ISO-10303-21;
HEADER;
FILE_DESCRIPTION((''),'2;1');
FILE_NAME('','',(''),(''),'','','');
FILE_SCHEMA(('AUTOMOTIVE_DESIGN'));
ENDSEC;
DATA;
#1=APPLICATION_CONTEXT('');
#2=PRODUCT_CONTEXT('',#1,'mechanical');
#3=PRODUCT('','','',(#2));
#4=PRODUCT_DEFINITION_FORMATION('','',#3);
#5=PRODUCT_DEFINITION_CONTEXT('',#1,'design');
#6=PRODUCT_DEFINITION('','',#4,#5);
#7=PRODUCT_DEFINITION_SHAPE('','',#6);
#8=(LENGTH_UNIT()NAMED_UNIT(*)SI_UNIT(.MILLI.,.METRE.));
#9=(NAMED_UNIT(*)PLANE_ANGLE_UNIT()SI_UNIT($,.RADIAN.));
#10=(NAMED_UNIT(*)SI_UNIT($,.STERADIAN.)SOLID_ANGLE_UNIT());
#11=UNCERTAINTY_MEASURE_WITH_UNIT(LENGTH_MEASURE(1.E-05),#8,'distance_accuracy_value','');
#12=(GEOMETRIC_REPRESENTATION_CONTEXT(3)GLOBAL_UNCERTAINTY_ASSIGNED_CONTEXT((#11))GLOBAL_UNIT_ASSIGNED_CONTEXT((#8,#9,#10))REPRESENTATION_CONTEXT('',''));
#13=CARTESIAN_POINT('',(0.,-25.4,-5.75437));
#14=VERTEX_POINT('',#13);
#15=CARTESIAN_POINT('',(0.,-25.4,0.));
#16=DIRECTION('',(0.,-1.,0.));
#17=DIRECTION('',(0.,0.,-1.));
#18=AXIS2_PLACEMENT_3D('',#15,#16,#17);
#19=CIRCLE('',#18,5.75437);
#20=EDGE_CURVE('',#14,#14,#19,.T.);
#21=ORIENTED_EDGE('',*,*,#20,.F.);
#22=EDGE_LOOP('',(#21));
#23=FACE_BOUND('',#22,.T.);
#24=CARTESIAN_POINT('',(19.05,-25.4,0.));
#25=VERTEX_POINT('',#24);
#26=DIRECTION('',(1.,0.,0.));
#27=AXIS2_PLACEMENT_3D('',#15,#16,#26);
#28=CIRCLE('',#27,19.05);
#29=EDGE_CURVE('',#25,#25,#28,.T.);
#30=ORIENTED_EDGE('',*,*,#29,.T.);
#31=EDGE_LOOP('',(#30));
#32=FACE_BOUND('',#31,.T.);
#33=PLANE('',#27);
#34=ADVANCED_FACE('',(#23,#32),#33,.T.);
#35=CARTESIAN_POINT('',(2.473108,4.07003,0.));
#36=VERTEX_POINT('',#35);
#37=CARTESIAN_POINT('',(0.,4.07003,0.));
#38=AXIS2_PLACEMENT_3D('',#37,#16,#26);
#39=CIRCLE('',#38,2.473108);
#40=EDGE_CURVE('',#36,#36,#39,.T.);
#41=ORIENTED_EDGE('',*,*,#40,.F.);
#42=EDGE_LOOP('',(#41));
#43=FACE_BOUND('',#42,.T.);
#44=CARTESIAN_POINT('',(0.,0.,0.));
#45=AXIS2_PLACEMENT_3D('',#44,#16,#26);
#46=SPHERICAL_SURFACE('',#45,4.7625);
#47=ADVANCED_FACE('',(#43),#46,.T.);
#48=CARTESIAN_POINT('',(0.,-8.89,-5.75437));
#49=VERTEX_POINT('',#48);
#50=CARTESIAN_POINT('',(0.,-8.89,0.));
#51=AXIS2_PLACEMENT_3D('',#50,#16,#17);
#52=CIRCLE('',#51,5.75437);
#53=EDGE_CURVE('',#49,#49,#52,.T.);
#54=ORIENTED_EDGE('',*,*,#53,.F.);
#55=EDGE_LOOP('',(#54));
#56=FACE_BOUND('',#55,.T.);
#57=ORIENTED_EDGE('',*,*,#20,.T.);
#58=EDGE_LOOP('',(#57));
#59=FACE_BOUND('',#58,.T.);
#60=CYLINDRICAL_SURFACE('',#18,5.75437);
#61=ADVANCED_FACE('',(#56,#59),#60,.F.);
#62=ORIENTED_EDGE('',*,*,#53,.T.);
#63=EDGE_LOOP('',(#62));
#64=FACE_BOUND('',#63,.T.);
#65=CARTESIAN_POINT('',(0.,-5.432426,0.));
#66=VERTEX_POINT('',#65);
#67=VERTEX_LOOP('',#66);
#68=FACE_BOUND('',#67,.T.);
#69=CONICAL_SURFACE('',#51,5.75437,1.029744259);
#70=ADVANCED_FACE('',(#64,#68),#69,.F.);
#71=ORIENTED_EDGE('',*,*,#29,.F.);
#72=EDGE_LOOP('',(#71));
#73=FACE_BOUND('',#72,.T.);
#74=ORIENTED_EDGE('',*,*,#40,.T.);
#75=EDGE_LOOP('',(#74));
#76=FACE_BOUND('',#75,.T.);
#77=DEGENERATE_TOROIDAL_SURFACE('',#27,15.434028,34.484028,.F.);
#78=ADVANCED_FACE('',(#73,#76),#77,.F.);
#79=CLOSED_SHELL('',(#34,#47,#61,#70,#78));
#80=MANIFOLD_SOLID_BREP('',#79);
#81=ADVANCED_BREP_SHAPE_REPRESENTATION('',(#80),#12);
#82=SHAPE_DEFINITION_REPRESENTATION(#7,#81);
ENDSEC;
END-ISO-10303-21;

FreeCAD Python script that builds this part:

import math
import FreeCAD as App
import Part
import Sketcher

V = App.Vector
Q = App.Units.Quantity

doc = App.newDocument("Part")
params = doc.addObject("Spreadsheet::Sheet", "Params")
for row, (alias, value) in enumerate([
    ("sketch1_radius", "0.1875 in"),
    ("sketch1_width", "0.75 in"),
    ("revolution_angle", "360 deg"),
    ("hole_diameter", "0.4531 in"),
    ("hole_depth", "0.65 in"),
], start=1):
    params.set(f"A{row}", alias)
    params.set(f"B{row}", "=" + value)
    params.setAlias(f"B{row}", alias)

body = doc.addObject("PartDesign::Body", "Body")

# Sketch on XY plane
sketch1 = body.newObject("Sketcher::SketchObject", "Sketch")
sketch1.AttachmentSupport = (doc.getObject("XY_Plane"), [""])
sketch1.MapMode = "FlatFace"
sketch1.addGeometry(Part.LineSegment(V(0, -25.4, 0), V(19.1, -25.4, 0)), False)
sketch1.addGeometry(Part.ArcOfCircle(Part.Circle(V(-15.4, -25.4, 0), V(0, 0, 1), 34.5), math.radians(0), math.radians(59)), False)
sketch1.addGeometry(Part.ArcOfCircle(Part.Circle(V(0, 0, 0), V(0, 0, 1), 4.8), math.radians(59), math.radians(90)), False)
sketch1.addGeometry(Part.LineSegment(V(0, 4.8, 0), V(0, -25.4, 0)), False)
sketch1.addConstraint(Sketcher.Constraint("Coincident", 0, 2, 1, 1))
sketch1.addConstraint(Sketcher.Constraint("Tangent", 1, 2, 2, 1))
sketch1.addConstraint(Sketcher.Constraint("Coincident", 2, 2, 3, 1))
sketch1.addConstraint(Sketcher.Constraint("Coincident", 3, 2, 0, 1))
sketch1.addConstraint(Sketcher.Constraint("Horizontal", 0))
sketch1.addConstraint(Sketcher.Constraint("Vertical", 3))
sketch1.addConstraint(Sketcher.Constraint("Coincident", 2, 3, -1, 1))
sketch1.addConstraint(Sketcher.Constraint("PointOnObject", 2, 2, -2))
sketch1.addConstraint(Sketcher.Constraint("Horizontal", 1, 3, 0, 2))
sketch1.addConstraint(Sketcher.Constraint("DistanceY", 1, 3, -1, 1, Q("1 in")))
sketch1.addConstraint(Sketcher.Constraint("Radius", 2, Q("0.1875 in")))
sketch1.addConstraint(Sketcher.Constraint("DistanceX", 0, 1, 0, 2, Q("0.75 in")))
sketch1.setExpression("Constraints[10]", "Params.sketch1_radius")
sketch1.setExpression("Constraints[11]", "Params.sketch1_width")
revolution = body.newObject("PartDesign::Revolution", "Revolution")
revolution.Profile = sketch1
revolution.ReferenceAxis = (sketch1, ["V_Axis"])
revolution.setExpression("Angle", "Params.revolution_angle")

# Sketch on XZ plane
sketch2 = body.newObject("Sketcher::SketchObject", "Sketch001")
sketch2.AttachmentSupport = (doc.getObject("XZ_Plane"), [""])
sketch2.MapMode = "FlatFace"
sketch2.AttachmentOffset = App.Placement(V(0, 0, 1 * 25.4), App.Rotation())
sketch2.addGeometry(Part.Circle(V(0, 0, 0), V(0, 0, 1), 6), False)
sketch2.addConstraint(Sketcher.Constraint("Coincident", 0, 3, -1, 1))
sketch2.addConstraint(Sketcher.Constraint("Diameter", 0, Q("0.4531 in")))
doc.recompute()
hole = body.newObject("PartDesign::Hole", "Hole")
hole.Profile = sketch2
hole.ThreadType = "None"
hole.setExpression("Diameter", "Params.hole_diameter")
hole.DepthType = "Dimension"
hole.setExpression("Depth", "Params.hole_depth")
hole.DrillPoint = "Angled"
hole.DrillPointAngle = 118

doc.recompute()
